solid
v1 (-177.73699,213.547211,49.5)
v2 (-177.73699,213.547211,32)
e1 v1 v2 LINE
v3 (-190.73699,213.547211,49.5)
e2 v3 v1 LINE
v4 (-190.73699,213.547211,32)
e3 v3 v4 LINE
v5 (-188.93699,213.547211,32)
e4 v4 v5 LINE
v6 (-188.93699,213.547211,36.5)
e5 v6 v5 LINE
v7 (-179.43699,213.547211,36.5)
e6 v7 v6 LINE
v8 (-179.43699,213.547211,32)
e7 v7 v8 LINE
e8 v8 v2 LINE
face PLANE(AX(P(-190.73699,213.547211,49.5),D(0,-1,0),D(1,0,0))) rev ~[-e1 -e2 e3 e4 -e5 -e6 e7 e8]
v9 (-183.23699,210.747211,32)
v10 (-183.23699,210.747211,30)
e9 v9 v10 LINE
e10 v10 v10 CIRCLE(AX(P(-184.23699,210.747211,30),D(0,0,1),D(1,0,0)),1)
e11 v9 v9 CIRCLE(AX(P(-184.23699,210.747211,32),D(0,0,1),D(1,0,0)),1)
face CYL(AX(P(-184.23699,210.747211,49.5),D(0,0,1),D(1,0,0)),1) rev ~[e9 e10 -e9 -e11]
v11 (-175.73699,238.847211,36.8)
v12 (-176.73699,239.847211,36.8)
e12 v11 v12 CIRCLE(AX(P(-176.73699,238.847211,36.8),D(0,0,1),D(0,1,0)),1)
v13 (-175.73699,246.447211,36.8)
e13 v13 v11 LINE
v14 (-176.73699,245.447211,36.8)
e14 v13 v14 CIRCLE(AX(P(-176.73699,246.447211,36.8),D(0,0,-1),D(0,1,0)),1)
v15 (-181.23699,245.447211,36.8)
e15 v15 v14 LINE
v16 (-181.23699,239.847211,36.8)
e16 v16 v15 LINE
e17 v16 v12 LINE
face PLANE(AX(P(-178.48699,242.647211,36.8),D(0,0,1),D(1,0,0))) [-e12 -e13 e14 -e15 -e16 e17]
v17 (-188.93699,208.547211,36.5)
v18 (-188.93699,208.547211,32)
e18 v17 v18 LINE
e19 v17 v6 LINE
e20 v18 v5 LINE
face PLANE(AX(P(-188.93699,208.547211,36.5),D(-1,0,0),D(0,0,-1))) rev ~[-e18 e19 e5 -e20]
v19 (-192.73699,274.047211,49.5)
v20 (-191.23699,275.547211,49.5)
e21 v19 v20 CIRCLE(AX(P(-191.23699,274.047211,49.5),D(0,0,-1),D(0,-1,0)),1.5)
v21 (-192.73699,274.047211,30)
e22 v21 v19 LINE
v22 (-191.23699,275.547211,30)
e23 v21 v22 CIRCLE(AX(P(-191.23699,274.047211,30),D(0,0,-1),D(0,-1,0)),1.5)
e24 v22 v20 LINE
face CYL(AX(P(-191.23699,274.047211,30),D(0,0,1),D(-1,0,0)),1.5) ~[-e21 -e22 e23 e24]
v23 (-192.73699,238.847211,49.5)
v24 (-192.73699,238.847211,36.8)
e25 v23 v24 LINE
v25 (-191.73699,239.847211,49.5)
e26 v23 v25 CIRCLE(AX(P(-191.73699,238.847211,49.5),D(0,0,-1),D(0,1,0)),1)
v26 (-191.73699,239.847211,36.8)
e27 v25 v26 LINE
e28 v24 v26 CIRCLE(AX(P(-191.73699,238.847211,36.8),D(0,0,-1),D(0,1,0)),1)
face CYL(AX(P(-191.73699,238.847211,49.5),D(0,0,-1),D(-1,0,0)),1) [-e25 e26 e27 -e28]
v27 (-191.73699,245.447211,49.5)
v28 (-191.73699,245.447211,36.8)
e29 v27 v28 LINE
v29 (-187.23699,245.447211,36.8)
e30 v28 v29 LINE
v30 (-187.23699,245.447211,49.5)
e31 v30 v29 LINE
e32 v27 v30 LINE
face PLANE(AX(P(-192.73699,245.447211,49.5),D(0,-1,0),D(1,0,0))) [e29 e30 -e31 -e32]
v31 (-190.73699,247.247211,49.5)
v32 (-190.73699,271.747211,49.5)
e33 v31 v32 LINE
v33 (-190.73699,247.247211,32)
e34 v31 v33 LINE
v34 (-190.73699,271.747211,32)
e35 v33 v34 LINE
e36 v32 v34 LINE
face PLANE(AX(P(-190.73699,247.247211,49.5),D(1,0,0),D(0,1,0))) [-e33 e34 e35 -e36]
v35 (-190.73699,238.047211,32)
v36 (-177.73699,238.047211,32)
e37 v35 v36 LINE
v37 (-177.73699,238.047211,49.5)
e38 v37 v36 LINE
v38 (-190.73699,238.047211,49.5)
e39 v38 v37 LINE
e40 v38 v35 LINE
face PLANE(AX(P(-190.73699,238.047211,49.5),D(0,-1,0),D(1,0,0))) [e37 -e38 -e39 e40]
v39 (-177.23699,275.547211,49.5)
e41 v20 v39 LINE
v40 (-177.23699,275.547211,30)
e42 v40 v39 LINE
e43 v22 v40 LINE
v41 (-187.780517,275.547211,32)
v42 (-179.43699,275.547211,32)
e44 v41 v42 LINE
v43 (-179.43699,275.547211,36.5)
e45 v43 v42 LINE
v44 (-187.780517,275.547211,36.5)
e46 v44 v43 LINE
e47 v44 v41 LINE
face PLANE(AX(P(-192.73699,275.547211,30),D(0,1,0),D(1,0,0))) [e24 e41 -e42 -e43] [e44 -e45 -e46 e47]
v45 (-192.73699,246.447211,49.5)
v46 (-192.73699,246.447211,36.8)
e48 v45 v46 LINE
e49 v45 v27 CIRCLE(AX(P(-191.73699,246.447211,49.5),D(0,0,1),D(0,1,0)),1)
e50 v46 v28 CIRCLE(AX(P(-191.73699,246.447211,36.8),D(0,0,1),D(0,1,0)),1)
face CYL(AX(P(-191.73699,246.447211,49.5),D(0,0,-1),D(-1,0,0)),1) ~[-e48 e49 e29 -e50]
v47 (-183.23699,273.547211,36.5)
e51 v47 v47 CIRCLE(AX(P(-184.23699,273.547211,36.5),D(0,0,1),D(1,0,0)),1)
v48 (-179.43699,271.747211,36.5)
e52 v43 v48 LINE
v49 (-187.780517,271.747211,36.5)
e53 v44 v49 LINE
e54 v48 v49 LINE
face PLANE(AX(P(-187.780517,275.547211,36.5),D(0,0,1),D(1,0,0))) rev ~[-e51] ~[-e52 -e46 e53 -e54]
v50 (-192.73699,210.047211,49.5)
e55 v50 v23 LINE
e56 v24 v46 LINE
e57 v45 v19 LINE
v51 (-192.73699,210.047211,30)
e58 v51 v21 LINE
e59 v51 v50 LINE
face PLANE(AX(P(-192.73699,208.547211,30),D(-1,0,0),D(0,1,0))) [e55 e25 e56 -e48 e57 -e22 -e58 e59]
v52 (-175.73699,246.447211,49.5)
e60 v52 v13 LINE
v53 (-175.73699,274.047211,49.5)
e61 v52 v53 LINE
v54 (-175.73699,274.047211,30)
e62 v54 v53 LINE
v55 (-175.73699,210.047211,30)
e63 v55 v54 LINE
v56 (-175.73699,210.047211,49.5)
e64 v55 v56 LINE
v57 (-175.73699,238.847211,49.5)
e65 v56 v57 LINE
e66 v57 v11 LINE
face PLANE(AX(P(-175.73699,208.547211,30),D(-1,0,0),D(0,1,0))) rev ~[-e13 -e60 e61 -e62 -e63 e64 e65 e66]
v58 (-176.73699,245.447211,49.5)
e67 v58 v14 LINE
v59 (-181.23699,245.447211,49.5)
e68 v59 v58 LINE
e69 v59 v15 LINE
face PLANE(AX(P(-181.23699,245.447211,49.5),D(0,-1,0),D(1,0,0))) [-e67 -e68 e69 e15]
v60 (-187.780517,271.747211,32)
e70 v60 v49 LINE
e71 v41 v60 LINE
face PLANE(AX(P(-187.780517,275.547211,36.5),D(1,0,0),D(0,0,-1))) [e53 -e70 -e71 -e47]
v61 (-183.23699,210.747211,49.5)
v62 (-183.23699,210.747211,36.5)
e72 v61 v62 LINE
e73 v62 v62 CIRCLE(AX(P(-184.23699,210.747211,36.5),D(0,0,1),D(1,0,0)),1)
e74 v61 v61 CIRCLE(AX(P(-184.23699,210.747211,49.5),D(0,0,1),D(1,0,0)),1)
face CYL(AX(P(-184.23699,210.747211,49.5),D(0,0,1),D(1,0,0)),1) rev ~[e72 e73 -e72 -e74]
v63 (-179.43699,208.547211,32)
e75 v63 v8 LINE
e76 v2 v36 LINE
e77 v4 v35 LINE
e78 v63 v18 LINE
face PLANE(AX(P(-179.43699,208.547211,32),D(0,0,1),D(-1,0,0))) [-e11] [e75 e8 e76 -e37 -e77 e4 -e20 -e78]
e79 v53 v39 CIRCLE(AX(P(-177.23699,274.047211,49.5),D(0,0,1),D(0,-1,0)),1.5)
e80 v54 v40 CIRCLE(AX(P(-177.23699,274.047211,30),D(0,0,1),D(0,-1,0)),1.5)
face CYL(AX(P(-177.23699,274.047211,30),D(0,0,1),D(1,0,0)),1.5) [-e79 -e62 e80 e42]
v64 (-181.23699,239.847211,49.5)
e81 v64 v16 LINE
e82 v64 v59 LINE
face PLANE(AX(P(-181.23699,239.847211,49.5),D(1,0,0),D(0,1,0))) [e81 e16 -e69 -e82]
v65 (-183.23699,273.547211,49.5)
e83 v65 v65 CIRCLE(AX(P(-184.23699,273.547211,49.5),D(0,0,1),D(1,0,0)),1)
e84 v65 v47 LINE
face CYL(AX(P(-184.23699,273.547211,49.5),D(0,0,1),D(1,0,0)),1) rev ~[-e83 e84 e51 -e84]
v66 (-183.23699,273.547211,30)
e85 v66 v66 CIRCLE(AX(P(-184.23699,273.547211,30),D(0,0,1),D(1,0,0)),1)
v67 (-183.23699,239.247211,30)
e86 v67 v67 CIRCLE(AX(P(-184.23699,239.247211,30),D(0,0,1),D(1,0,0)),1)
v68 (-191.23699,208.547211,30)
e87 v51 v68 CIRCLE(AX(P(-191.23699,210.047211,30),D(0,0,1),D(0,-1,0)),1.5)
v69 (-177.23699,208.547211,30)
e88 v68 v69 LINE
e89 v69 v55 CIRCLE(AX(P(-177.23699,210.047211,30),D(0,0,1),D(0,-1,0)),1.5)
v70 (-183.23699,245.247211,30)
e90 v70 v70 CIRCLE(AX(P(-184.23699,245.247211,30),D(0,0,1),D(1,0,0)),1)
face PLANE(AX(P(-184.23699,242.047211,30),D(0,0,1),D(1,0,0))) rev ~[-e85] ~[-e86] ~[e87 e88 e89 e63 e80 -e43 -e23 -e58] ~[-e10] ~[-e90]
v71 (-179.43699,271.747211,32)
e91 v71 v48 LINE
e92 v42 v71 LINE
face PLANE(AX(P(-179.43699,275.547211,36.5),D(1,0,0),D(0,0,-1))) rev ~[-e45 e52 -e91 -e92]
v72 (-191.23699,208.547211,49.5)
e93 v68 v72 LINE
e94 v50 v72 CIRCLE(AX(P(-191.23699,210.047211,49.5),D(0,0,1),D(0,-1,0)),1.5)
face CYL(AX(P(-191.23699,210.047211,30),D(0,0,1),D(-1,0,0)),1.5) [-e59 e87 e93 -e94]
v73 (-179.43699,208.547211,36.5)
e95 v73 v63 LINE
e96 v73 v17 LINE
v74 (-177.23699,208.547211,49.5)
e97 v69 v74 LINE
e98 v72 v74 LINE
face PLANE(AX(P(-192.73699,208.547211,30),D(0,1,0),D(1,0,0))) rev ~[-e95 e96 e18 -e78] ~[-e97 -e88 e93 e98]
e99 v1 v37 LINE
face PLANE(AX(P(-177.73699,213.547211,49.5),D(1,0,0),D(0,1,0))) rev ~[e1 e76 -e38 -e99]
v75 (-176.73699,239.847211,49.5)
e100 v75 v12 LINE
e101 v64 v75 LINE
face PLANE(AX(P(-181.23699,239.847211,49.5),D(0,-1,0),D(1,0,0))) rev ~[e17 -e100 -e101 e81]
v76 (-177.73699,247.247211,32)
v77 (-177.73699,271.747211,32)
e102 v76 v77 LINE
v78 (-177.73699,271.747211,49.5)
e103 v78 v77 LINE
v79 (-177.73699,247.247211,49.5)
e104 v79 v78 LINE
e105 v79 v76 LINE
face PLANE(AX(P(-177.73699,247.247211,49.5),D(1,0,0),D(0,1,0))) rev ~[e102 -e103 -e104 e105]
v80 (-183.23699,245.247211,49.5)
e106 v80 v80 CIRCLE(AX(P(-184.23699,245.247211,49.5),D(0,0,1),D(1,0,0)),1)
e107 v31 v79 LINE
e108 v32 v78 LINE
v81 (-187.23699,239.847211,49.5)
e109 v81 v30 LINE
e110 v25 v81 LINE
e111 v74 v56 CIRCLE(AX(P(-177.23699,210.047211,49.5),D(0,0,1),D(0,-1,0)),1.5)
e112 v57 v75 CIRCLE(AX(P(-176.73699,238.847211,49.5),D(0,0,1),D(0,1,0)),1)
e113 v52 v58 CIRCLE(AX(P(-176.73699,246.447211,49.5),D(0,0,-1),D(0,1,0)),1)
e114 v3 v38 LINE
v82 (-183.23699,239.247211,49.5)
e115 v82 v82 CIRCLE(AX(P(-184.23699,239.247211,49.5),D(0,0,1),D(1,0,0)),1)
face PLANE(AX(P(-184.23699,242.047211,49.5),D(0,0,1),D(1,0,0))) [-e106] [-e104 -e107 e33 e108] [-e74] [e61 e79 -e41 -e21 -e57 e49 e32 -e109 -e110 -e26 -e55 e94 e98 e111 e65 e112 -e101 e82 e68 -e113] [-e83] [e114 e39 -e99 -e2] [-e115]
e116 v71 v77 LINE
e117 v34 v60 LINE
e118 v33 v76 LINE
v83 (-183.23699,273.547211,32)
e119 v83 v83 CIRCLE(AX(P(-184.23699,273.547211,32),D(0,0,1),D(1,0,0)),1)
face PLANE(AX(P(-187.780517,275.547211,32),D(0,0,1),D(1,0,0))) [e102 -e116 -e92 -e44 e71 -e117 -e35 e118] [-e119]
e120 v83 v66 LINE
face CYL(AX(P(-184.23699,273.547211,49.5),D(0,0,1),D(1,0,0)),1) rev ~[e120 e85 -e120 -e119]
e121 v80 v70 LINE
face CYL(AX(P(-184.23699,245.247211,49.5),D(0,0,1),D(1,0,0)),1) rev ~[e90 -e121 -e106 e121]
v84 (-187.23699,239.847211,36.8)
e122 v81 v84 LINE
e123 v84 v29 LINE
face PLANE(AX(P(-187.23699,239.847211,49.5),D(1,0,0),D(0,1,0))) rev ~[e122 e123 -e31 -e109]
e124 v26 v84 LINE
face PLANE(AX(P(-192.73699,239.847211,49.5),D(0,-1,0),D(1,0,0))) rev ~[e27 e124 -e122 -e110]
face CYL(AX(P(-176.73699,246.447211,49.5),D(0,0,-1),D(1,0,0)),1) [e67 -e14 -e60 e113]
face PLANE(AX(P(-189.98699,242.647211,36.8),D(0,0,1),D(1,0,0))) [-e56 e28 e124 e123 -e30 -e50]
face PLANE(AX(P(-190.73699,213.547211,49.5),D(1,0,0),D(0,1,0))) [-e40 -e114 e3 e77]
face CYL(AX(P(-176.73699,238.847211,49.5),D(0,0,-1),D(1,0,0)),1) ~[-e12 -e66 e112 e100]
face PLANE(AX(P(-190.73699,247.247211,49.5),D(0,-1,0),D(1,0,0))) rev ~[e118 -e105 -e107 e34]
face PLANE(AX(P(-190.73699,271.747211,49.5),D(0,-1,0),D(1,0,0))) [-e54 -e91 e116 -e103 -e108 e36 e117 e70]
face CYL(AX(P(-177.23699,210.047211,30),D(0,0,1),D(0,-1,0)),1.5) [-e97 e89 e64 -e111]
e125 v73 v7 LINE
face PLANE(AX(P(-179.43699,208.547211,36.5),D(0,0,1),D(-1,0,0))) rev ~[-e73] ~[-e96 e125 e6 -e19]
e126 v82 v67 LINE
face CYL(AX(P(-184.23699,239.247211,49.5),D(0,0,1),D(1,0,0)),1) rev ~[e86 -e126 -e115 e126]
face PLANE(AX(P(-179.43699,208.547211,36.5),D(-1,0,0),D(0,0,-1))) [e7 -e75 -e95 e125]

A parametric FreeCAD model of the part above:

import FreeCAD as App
import Part
import Sketcher
from FreeCAD import Vector
Q = App.Units.Quantity


def edges_at(feature, points):
    """Names of the edges that pass closest to the given points."""
    edges = feature.Shape.Edges
    near = lambda p: min(range(len(edges)), key=lambda i: edges[i].distToShape(Part.Vertex(*p))[0])
    return sorted({f"Edge{near(p) + 1}" for p in points})

doc = App.newDocument("Part")
body = doc.addObject("PartDesign::Body", "Body")

sketch1 = body.newObject("Sketcher::SketchObject", "Sketch")
sketch1.AttachmentSupport = (doc.getObject("XY_Plane"), [""])
sketch1.MapMode = "FlatFace"
sketch1.AttachmentOffset = App.Placement(Vector(0, 0, 30), App.Rotation())
sketch1.addGeometry([
    Part.LineSegment(Vector(-192.73699, 275.547211, 0), Vector(-192.73699, 208.547211, 0)),
    Part.LineSegment(Vector(-192.73699, 208.547211, 0), Vector(-175.73699, 208.547211, 0)),
    Part.LineSegment(Vector(-175.73699, 208.547211, 0), Vector(-175.73699, 275.547211, 0)),
    Part.LineSegment(Vector(-175.73699, 275.547211, 0), Vector(-192.73699, 275.547211, 0)),
], False)
sketch1.addConstraint([
    Sketcher.Constraint("Coincident", 0, 2, 1, 1),
    Sketcher.Constraint("Coincident", 1, 2, 2, 1),
    Sketcher.Constraint("Coincident", 2, 2, 3, 1),
    Sketcher.Constraint("Coincident", 3, 2, 0, 1),
    Sketcher.Constraint("Vertical", 0),
    Sketcher.Constraint("Horizontal", 1),
    Sketcher.Constraint("Vertical", 2),
    Sketcher.Constraint("Horizontal", 3),
    Sketcher.Constraint("DistanceX", 1, 1, 1, 2, Q("17 mm")),
    Sketcher.Constraint("DistanceY", 0, 2, 0, 1, Q("67 mm")),
    Sketcher.Constraint("DistanceX", 0, 2, -1, 1, Q("192.73699 mm")),
    Sketcher.Constraint("DistanceY", -1, 1, 0, 2, Q("208.547211 mm")),
])
pad1 = body.newObject("PartDesign::Pad", "Pad")
pad1.Profile = sketch1
pad1.Length = 19.5
doc.recompute()

fillet = body.newObject("PartDesign::Fillet", "Fillet")
fillet.Base = (pad1, edges_at(pad1, [
    (-192.737, 275.547, 39.75),
    (-175.737, 275.547, 39.75),
    (-175.737, 208.547, 39.75),
    (-192.737, 208.547, 39.75),
]))
fillet.Radius = 1.5

sketch2 = body.newObject("Sketcher::SketchObject", "Sketch001")
sketch2.AttachmentSupport = (doc.getObject("XY_Plane"), [""])
sketch2.MapMode = "FlatFace"
sketch2.AttachmentOffset = App.Placement(Vector(0, 0, 49.5), App.Rotation())
sketch2.addGeometry([
    Part.LineSegment(Vector(-190.73699, 271.747211, 0), Vector(-190.73699, 247.247211, 0)),
    Part.LineSegment(Vector(-190.73699, 247.247211, 0), Vector(-177.73699, 247.247211, 0)),
    Part.LineSegment(Vector(-177.73699, 247.247211, 0), Vector(-177.73699, 271.747211, 0)),
    Part.LineSegment(Vector(-177.73699, 271.747211, 0), Vector(-190.73699, 271.747211, 0)),
    Part.LineSegment(Vector(-190.73699, 238.047211, 0), Vector(-190.73699, 213.547211, 0)),
    Part.LineSegment(Vector(-190.73699, 213.547211, 0), Vector(-177.73699, 213.547211, 0)),
    Part.LineSegment(Vector(-177.73699, 213.547211, 0), Vector(-177.73699, 238.047211, 0)),
    Part.LineSegment(Vector(-177.73699, 238.047211, 0), Vector(-190.73699, 238.047211, 0)),
], False)
sketch2.addConstraint([
    Sketcher.Constraint("Coincident", 0, 2, 1, 1),
    Sketcher.Constraint("Coincident", 1, 2, 2, 1),
    Sketcher.Constraint("Coincident", 2, 2, 3, 1),
    Sketcher.Constraint("Coincident", 3, 2, 0, 1),
    Sketcher.Constraint("Coincident", 4, 2, 5, 1),
    Sketcher.Constraint("Coincident", 5, 2, 6, 1),
    Sketcher.Constraint("Coincident", 6, 2, 7, 1),
    Sketcher.Constraint("Coincident", 7, 2, 4, 1),
    Sketcher.Constraint("Vertical", 0),
    Sketcher.Constraint("Horizontal", 1),
    Sketcher.Constraint("Vertical", 2),
    Sketcher.Constraint("Horizontal", 3),
    Sketcher.Constraint("Vertical", 4),
    Sketcher.Constraint("Horizontal", 5),
    Sketcher.Constraint("Vertical", 6),
    Sketcher.Constraint("Horizontal", 7),
    Sketcher.Constraint("Vertical", 3, 2, 4, 2),
    Sketcher.Constraint("Vertical", 2, 2, 5, 2),
    Sketcher.Constraint("Equal", 2, 4),
    Sketcher.Constraint("DistanceX", 1, 1, 1, 2, Q("13 mm")),
    Sketcher.Constraint("DistanceY", 0, 2, 0, 1, Q("24.5 mm")),
    Sketcher.Constraint("DistanceY", 4, 2, 0, 2, Q("33.7 mm")),
    Sketcher.Constraint("DistanceX", 0, 2, -1, 1, Q("190.73699 mm")),
    Sketcher.Constraint("DistanceY", -1, 1, 0, 2, Q("247.247211 mm")),
])
pocket1 = body.newObject("PartDesign::Pocket", "Pocket")
pocket1.Profile = sketch2
pocket1.Length = 17.5

sketch3 = body.newObject("Sketcher::SketchObject", "Sketch002")
sketch3.AttachmentSupport = (doc.getObject("XY_Plane"), [""])
sketch3.MapMode = "FlatFace"
sketch3.AttachmentOffset = App.Placement(Vector(0, 0, 49.5), App.Rotation())
sketch3.addGeometry([
    Part.LineSegment(Vector(-192.73699, 245.447211, 0), Vector(-192.73699, 239.847211, 0)),
    Part.LineSegment(Vector(-192.73699, 239.847211, 0), Vector(-187.23699, 239.847211, 0)),
    Part.LineSegment(Vector(-187.23699, 239.847211, 0), Vector(-187.23699, 245.447211, 0)),
    Part.LineSegment(Vector(-187.23699, 245.447211, 0), Vector(-192.73699, 245.447211, 0)),
    Part.LineSegment(Vector(-181.23699, 245.447211, 0), Vector(-181.23699, 239.847211, 0)),
    Part.LineSegment(Vector(-181.23699, 239.847211, 0), Vector(-175.73699, 239.847211, 0)),
    Part.LineSegment(Vector(-175.73699, 239.847211, 0), Vector(-175.73699, 245.447211, 0)),
    Part.LineSegment(Vector(-175.73699, 245.447211, 0), Vector(-181.23699, 245.447211, 0)),
], False)
sketch3.addConstraint([
    Sketcher.Constraint("Coincident", 0, 2, 1, 1),
    Sketcher.Constraint("Coincident", 1, 2, 2, 1),
    Sketcher.Constraint("Coincident", 2, 2, 3, 1),
    Sketcher.Constraint("Coincident", 3, 2, 0, 1),
    Sketcher.Constraint("Coincident", 4, 2, 5, 1),
    Sketcher.Constraint("Coincident", 5, 2, 6, 1),
    Sketcher.Constraint("Coincident", 6, 2, 7, 1),
    Sketcher.Constraint("Coincident", 7, 2, 4, 1),
    Sketcher.Constraint("Vertical", 0),
    Sketcher.Constraint("Horizontal", 1),
    Sketcher.Constraint("Vertical", 2),
    Sketcher.Constraint("Horizontal", 3),
    Sketcher.Constraint("Vertical", 4),
    Sketcher.Constraint("Horizontal", 5),
    Sketcher.Constraint("Vertical", 6),
    Sketcher.Constraint("Horizontal", 7),
    Sketcher.Constraint("Horizontal", 1, 2, 4, 2),
    Sketcher.Constraint("Horizontal", 3, 2, 6, 2),
    Sketcher.Constraint("Equal", 3, 5),
    Sketcher.Constraint("DistanceX", 1, 1, 1, 2, Q("5.5 mm")),
    Sketcher.Constraint("DistanceY", 0, 2, 0, 1, Q("5.6 mm")),
    Sketcher.Constraint("DistanceX", 1, 2, 4, 2, Q("6 mm")),
    Sketcher.Constraint("DistanceX", 0, 2, -1, 1, Q("192.73699 mm")),
    Sketcher.Constraint("DistanceY", -1, 1, 0, 2, Q("239.847211 mm")),
])
pocket2 = body.newObject("PartDesign::Pocket", "Pocket001")
pocket2.Profile = sketch3
pocket2.Length = 12.7
doc.recompute()

fillet2 = body.newObject("PartDesign::Fillet", "Fillet001")
fillet2.Base = (pocket2, edges_at(pocket2, [
    (-192.737, 239.847, 43.15),
    (-192.737, 245.447, 43.15),
    (-175.737, 245.447, 43.15),
    (-175.737, 239.847, 43.15),
]))
fillet2.Radius = 1

sketch4 = body.newObject("Sketcher::SketchObject", "Sketch003")
sketch4.AttachmentSupport = (doc.getObject("XY_Plane"), [""])
sketch4.MapMode = "FlatFace"
sketch4.AttachmentOffset = App.Placement(Vector(0, 0, 49.5), App.Rotation())
sketch4.addGeometry([
    Part.Circle(Vector(-184.23699, 273.547211, 0), Vector(0, 0, 1), 1),
    Part.Circle(Vector(-184.23699, 210.747211, 0), Vector(0, 0, 1), 1),
    Part.Circle(Vector(-184.23699, 245.247211, 0), Vector(0, 0, 1), 1),
    Part.Circle(Vector(-184.23699, 239.247211, 0), Vector(0, 0, 1), 1),
], False)
sketch4.addConstraint([
    Sketcher.Constraint("Equal", 0, 1),
    Sketcher.Constraint("Equal", 1, 2),
    Sketcher.Constraint("Equal", 2, 3),
    Sketcher.Constraint("Vertical", 0, 3, 1, 3),
    Sketcher.Constraint("Vertical", 1, 3, 2, 3),
    Sketcher.Constraint("Vertical", 2, 3, 3, 3),
    Sketcher.Constraint("Diameter", 0, Q("2 mm")),
    Sketcher.Constraint("DistanceY", 3, 3, 2, 3, Q("6 mm")),
    Sketcher.Constraint("DistanceY", 1, 3, 0, 3, Q("62.8 mm")),
    Sketcher.Constraint("DistanceY", 2, 3, 0, 3, Q("28.3 mm")),
    Sketcher.Constraint("DistanceX", 0, 3, -1, 1, Q("184.23699 mm")),
    Sketcher.Constraint("DistanceY", -1, 1, 0, 3, Q("273.547211 mm")),
])
pocket3 = body.newObject("PartDesign::Pocket", "Pocket002")
pocket3.Profile = sketch4
pocket3.Type = "ThroughAll"

sketch5 = body.newObject("Sketcher::SketchObject", "Sketch004")
sketch5.AttachmentSupport = (doc.getObject("XZ_Plane"), [""])
sketch5.MapMode = "FlatFace"
sketch5.AttachmentOffset = App.Placement(Vector(0, 0, -208.547211), App.Rotation())
sketch5.addGeometry([
    Part.LineSegment(Vector(-179.43699, 32, 0), Vector(-179.43699, 36.5, 0)),
    Part.LineSegment(Vector(-179.43699, 36.5, 0), Vector(-188.93699, 36.5, 0)),
    Part.LineSegment(Vector(-188.93699, 36.5, 0), Vector(-188.93699, 32, 0)),
    Part.LineSegment(Vector(-188.93699, 32, 0), Vector(-179.43699, 32, 0)),
], False)
sketch5.addConstraint([
    Sketcher.Constraint("Coincident", 0, 2, 1, 1),
    Sketcher.Constraint("Coincident", 1, 2, 2, 1),
    Sketcher.Constraint("Coincident", 2, 2, 3, 1),
    Sketcher.Constraint("Coincident", 3, 2, 0, 1),
    Sketcher.Constraint("Vertical", 0),
    Sketcher.Constraint("Horizontal", 1),
    Sketcher.Constraint("Vertical", 2),
    Sketcher.Constraint("Horizontal", 3),
    Sketcher.Constraint("DistanceX", 1, 2, 1, 1, Q("9.5 mm")),
    Sketcher.Constraint("DistanceY", 0, 1, 0, 2, Q("4.5 mm")),
    Sketcher.Constraint("DistanceY", -1, 1, 2, 2, Q("32 mm")),
    Sketcher.Constraint("DistanceX", 0, 2, -1, 1, Q("179.43699 mm")),
])
pocket4 = body.newObject("PartDesign::Pocket", "Pocket003")
pocket4.Profile = sketch5
pocket4.Length = 5

sketch6 = body.newObject("Sketcher::SketchObject", "Sketch005")
sketch6.AttachmentSupport = (doc.getObject("XZ_Plane"), [""])
sketch6.MapMode = "FlatFace"
sketch6.AttachmentOffset = App.Placement(Vector(0, 0, -275.547211), App.Rotation())
sketch6.addGeometry([
    Part.LineSegment(Vector(-187.780517, 32, 0), Vector(-187.780517, 36.5, 0)),
    Part.LineSegment(Vector(-187.780517, 36.5, 0), Vector(-179.43699, 36.5, 0)),
    Part.LineSegment(Vector(-179.43699, 36.5, 0), Vector(-179.43699, 32, 0)),
    Part.LineSegment(Vector(-179.43699, 32, 0), Vector(-187.780517, 32, 0)),
], False)
sketch6.addConstraint([
    Sketcher.Constraint("Coincident", 0, 2, 1, 1),
    Sketcher.Constraint("Coincident", 1, 2, 2, 1),
    Sketcher.Constraint("Coincident", 2, 2, 3, 1),
    Sketcher.Constraint("Coincident", 3, 2, 0, 1),
    Sketcher.Constraint("Vertical", 0),
    Sketcher.Constraint("Horizontal", 1),
    Sketcher.Constraint("Vertical", 2),
    Sketcher.Constraint("Horizontal", 3),
    Sketcher.Constraint("DistanceY", 0, 1, 0, 2, Q("4.5 mm")),
    Sketcher.Constraint("DistanceY", -1, 1, 2, 2, Q("32 mm")),
    Sketcher.Constraint("DistanceX", 1, 1, 1, 2, Q("8.343526 mm")),
    Sketcher.Constraint("DistanceX", 1, 2, -1, 1, Q("179.43699 mm")),
])
pocket5 = body.newObject("PartDesign::Pocket", "Pocket004")
pocket5.Profile = sketch6
pocket5.Length = 5
pocket5.Reversed = True

doc.recompute()
